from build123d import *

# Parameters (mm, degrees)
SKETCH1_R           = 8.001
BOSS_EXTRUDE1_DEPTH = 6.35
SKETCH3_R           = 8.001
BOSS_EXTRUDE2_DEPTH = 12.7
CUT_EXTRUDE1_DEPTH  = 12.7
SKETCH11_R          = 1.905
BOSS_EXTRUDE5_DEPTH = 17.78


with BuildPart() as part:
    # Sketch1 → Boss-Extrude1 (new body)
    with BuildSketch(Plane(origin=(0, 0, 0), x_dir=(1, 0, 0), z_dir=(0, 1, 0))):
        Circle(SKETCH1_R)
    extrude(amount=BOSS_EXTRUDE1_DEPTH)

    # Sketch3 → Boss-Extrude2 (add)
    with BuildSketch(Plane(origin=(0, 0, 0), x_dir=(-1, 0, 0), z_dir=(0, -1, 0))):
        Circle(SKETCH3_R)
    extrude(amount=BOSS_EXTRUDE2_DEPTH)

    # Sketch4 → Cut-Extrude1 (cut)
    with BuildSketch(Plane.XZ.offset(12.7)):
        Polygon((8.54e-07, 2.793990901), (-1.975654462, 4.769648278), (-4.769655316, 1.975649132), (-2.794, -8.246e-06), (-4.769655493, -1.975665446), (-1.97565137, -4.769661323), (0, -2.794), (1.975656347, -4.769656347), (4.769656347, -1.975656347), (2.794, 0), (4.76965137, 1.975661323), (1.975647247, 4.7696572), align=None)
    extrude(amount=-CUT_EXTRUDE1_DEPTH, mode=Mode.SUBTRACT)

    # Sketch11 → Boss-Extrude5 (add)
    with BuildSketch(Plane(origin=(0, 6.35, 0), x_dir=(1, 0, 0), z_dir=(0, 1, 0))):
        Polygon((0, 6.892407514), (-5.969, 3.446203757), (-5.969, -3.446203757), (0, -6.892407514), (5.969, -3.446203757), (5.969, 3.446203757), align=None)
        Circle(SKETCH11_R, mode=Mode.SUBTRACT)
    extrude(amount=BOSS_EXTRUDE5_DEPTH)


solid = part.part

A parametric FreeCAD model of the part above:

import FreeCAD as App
import Part
import Sketcher
Q = App.Units.Quantity

doc = App.newDocument("Part")
body = doc.addObject("PartDesign::Body", "Body")

sketch1 = body.newObject("Sketcher::SketchObject", "Sketch")
sketch1.AttachmentSupport = (doc.getObject("XZ_Plane"), [""])
sketch1.MapMode = "FlatFace"
sketch1.addGeometry(Part.Circle(App.Vector(0, 0, 0), App.Vector(0, 0, 1), 8), False)
sketch1.addConstraint([
    Sketcher.Constraint("Coincident", 0, 3, -1, 1),
    Sketcher.Constraint("Diameter", 0, Q("0.63 in")),
])
pad1 = body.newObject("PartDesign::Pad", "Pad")
pad1.Profile = sketch1
pad1.Length = Q("0.25 in")
pad1.Reversed = True

sketch2 = body.newObject("Sketcher::SketchObject", "Sketch001")
sketch2.AttachmentSupport = (doc.getObject("XZ_Plane"), [""])
sketch2.MapMode = "FlatFace"
sketch2.addGeometry(Part.Circle(App.Vector(0, 0, 0), App.Vector(0, 0, 1), 8), False)
sketch2.addConstraint([
    Sketcher.Constraint("Coincident", 0, 3, -1, 1),
    Sketcher.Constraint("Diameter", 0, Q("0.63 in")),
])
pad2 = body.newObject("PartDesign::Pad", "Pad001")
pad2.Profile = sketch2
pad2.Length = Q("0.5 in")

sketch3 = body.newObject("Sketcher::SketchObject", "Sketch002")
sketch3.AttachmentSupport = (doc.getObject("XZ_Plane"), [""])
sketch3.MapMode = "FlatFace"
sketch3.AttachmentOffset = App.Placement(App.Vector(0, 0, 0.5 * 25.4), App.Rotation())
sketch3.addGeometry([
    Part.LineSegment(App.Vector(0, 2.8, 0), App.Vector(-2, 4.8, 0)),
    Part.LineSegment(App.Vector(-2, 4.8, 0), App.Vector(-4.8, 2, 0)),
    Part.LineSegment(App.Vector(-4.8, 2, 0), App.Vector(-2.8, 0, 0)),
    Part.LineSegment(App.Vector(-2.8, 0, 0), App.Vector(-4.8, -2, 0)),
    Part.LineSegment(App.Vector(-4.8, -2, 0), App.Vector(-2, -4.8, 0)),
    Part.LineSegment(App.Vector(-2, -4.8, 0), App.Vector(0, -2.8, 0)),
    Part.LineSegment(App.Vector(0, -2.8, 0), App.Vector(2, -4.8, 0)),
    Part.LineSegment(App.Vector(2, -4.8, 0), App.Vector(4.8, -2, 0)),
    Part.LineSegment(App.Vector(4.8, -2, 0), App.Vector(2.8, 0, 0)),
    Part.LineSegment(App.Vector(2.8, 0, 0), App.Vector(4.8, 2, 0)),
    Part.LineSegment(App.Vector(4.8, 2, 0), App.Vector(2, 4.8, 0)),
    Part.LineSegment(App.Vector(2, 4.8, 0), App.Vector(0, 2.8, 0)),
], False)
sketch3.addConstraint([
    Sketcher.Constraint("Coincident", 0, 2, 1, 1),
    Sketcher.Constraint("Coincident", 1, 2, 2, 1),
    Sketcher.Constraint("Coincident", 2, 2, 3, 1),
    Sketcher.Constraint("Coincident", 3, 2, 4, 1),
    Sketcher.Constraint("Coincident", 4, 2, 5, 1),
    Sketcher.Constraint("Coincident", 5, 2, 6, 1),
    Sketcher.Constraint("Coincident", 6, 2, 7, 1),
    Sketcher.Constraint("Coincident", 7, 2, 8, 1),
    Sketcher.Constraint("Coincident", 8, 2, 9, 1),
    Sketcher.Constraint("Coincident", 9, 2, 10, 1),
    Sketcher.Constraint("Coincident", 10, 2, 11, 1),
    Sketcher.Constraint("Coincident", 11, 2, 0, 1),
    Sketcher.Constraint("Symmetric", 0, 2, 6, 2, -1, 1),
    Sketcher.Constraint("Symmetric", 1, 2, 7, 2, -1, 1),
    Sketcher.Constraint("Symmetric", 2, 2, 8, 2, -1, 1),
    Sketcher.Constraint("Symmetric", 3, 2, 9, 2, -1, 1),
    Sketcher.Constraint("Symmetric", 4, 2, 10, 2, -1, 1),
    Sketcher.Constraint("Symmetric", 5, 2, 11, 2, -1, 1),
    Sketcher.Constraint("Symmetric", 4, 2, 6, 2, -2),
    Sketcher.Constraint("Symmetric", 3, 2, 7, 2, -2),
    Sketcher.Constraint("PointOnObject", 5, 2, -2),
    Sketcher.Constraint("PointOnObject", 8, 2, -1),
    Sketcher.Constraint("Perpendicular", 0, 1),
    Sketcher.Constraint("Perpendicular", 1, 2),
    Sketcher.Constraint("Perpendicular", 2, 3),
    Sketcher.Constraint("Equal", 0, 2),
    Sketcher.Constraint("Distance", 0, Q("0.11 in")),
    Sketcher.Constraint("DistanceX", 2, 2, -1, 1, Q("0.11 in")),
])
pocket1 = body.newObject("PartDesign::Pocket", "Pocket")
pocket1.Profile = sketch3
pocket1.Length = Q("0.5 in")

sketch4 = body.newObject("Sketcher::SketchObject", "Sketch003")
sketch4.AttachmentSupport = (doc.getObject("XZ_Plane"), [""])
sketch4.MapMode = "FlatFace"
sketch4.AttachmentOffset = App.Placement(App.Vector(0, 0, -0.25 * 25.4), App.Rotation())
sketch4.addGeometry([
    Part.LineSegment(App.Vector(0, -6.9, 0), App.Vector(-6, -3.4, 0)),
    Part.LineSegment(App.Vector(-6, -3.4, 0), App.Vector(-6, 3.4, 0)),
    Part.LineSegment(App.Vector(-6, 3.4, 0), App.Vector(0, 6.9, 0)),
    Part.LineSegment(App.Vector(0, 6.9, 0), App.Vector(6, 3.4, 0)),
    Part.LineSegment(App.Vector(6, 3.4, 0), App.Vector(6, -3.4, 0)),
    Part.LineSegment(App.Vector(6, -3.4, 0), App.Vector(0, -6.9, 0)),
    Part.Circle(App.Vector(0, 0, 0), App.Vector(0, 0, 1), 1.9),
], False)
sketch4.addConstraint([
    Sketcher.Constraint("Coincident", 0, 2, 1, 1),
    Sketcher.Constraint("Coincident", 1, 2, 2, 1),
    Sketcher.Constraint("Coincident", 2, 2, 3, 1),
    Sketcher.Constraint("Coincident", 3, 2, 4, 1),
    Sketcher.Constraint("Coincident", 4, 2, 5, 1),
    Sketcher.Constraint("Coincident", 5, 2, 0, 1),
    Sketcher.Constraint("Vertical", 1),
    Sketcher.Constraint("Vertical", 4),
    Sketcher.Constraint("Coincident", 6, 3, -1, 1),
    Sketcher.Constraint("Symmetric", 0, 2, 3, 2, -1, 1),
    Sketcher.Constraint("Symmetric", 2, 2, 5, 2, -1, 1),
    Sketcher.Constraint("PointOnObject", 2, 2, -2),
    Sketcher.Constraint("Parallel", 2, 5),
    Sketcher.Constraint("Horizontal", 1, 2, 3, 2),
    Sketcher.Constraint("Diameter", 6, Q("0.15 in")),
    Sketcher.Constraint("Angle", 0, Q("150 deg")),
    Sketcher.Constraint("DistanceX", 1, 2, 3, 2, Q("0.47 in")),
    Sketcher.Constraint("DistanceY", 1, 1, 1, 2, 6.892408),
])
pad3 = body.newObject("PartDesign::Pad", "Pad002")
pad3.Profile = sketch4
pad3.Length = Q("0.7 in")
pad3.Reversed = True

doc.recompute()
